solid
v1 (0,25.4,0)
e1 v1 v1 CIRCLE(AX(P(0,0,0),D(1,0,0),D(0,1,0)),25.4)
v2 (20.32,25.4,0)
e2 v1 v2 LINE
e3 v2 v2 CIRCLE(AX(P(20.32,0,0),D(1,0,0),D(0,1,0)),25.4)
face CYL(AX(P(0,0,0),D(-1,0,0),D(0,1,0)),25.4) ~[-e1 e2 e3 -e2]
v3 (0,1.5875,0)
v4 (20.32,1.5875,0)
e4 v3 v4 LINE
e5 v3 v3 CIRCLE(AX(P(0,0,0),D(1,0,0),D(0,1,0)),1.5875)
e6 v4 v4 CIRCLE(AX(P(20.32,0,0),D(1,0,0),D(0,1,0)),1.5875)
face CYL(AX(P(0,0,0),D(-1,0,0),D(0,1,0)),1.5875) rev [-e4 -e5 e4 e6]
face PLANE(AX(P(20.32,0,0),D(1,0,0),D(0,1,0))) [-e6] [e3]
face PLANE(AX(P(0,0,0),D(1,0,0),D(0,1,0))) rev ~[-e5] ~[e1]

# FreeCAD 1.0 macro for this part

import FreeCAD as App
import Part
import Sketcher
from FreeCAD import Vector
Q = App.Units.Quantity

doc = App.newDocument("Part")
body = doc.addObject("PartDesign::Body", "Body")

# Sketch on YZ plane
sketch1 = doc.addObject("Sketcher::SketchObject", "Sketch")
body.addObject(sketch1)
sketch1.AttachmentSupport = (doc.YZ_Plane, [""])
sketch1.MapMode = "FlatFace"
sketch1.addGeometry([
    Part.Circle(Vector(0, 0, 0), Vector(0, 0, 1), 25.4),
    Part.Circle(Vector(0, 0, 0), Vector(0, 0, 1), 1.5875),
], False)
sketch1.addConstraint([
    Sketcher.Constraint("Coincident", 0, 3, -1, 1),
    Sketcher.Constraint("Coincident", 1, 3, -1, 1),
    Sketcher.Constraint("Diameter", 0, Q("2 in")),
    Sketcher.Constraint("Diameter", 1, Q("0.125 in")),
])
pad1 = doc.addObject("PartDesign::Pad", "Pad")
body.addObject(pad1)
pad1.Profile = sketch1
pad1.Length = Q("0.8 in")

doc.recompute()
